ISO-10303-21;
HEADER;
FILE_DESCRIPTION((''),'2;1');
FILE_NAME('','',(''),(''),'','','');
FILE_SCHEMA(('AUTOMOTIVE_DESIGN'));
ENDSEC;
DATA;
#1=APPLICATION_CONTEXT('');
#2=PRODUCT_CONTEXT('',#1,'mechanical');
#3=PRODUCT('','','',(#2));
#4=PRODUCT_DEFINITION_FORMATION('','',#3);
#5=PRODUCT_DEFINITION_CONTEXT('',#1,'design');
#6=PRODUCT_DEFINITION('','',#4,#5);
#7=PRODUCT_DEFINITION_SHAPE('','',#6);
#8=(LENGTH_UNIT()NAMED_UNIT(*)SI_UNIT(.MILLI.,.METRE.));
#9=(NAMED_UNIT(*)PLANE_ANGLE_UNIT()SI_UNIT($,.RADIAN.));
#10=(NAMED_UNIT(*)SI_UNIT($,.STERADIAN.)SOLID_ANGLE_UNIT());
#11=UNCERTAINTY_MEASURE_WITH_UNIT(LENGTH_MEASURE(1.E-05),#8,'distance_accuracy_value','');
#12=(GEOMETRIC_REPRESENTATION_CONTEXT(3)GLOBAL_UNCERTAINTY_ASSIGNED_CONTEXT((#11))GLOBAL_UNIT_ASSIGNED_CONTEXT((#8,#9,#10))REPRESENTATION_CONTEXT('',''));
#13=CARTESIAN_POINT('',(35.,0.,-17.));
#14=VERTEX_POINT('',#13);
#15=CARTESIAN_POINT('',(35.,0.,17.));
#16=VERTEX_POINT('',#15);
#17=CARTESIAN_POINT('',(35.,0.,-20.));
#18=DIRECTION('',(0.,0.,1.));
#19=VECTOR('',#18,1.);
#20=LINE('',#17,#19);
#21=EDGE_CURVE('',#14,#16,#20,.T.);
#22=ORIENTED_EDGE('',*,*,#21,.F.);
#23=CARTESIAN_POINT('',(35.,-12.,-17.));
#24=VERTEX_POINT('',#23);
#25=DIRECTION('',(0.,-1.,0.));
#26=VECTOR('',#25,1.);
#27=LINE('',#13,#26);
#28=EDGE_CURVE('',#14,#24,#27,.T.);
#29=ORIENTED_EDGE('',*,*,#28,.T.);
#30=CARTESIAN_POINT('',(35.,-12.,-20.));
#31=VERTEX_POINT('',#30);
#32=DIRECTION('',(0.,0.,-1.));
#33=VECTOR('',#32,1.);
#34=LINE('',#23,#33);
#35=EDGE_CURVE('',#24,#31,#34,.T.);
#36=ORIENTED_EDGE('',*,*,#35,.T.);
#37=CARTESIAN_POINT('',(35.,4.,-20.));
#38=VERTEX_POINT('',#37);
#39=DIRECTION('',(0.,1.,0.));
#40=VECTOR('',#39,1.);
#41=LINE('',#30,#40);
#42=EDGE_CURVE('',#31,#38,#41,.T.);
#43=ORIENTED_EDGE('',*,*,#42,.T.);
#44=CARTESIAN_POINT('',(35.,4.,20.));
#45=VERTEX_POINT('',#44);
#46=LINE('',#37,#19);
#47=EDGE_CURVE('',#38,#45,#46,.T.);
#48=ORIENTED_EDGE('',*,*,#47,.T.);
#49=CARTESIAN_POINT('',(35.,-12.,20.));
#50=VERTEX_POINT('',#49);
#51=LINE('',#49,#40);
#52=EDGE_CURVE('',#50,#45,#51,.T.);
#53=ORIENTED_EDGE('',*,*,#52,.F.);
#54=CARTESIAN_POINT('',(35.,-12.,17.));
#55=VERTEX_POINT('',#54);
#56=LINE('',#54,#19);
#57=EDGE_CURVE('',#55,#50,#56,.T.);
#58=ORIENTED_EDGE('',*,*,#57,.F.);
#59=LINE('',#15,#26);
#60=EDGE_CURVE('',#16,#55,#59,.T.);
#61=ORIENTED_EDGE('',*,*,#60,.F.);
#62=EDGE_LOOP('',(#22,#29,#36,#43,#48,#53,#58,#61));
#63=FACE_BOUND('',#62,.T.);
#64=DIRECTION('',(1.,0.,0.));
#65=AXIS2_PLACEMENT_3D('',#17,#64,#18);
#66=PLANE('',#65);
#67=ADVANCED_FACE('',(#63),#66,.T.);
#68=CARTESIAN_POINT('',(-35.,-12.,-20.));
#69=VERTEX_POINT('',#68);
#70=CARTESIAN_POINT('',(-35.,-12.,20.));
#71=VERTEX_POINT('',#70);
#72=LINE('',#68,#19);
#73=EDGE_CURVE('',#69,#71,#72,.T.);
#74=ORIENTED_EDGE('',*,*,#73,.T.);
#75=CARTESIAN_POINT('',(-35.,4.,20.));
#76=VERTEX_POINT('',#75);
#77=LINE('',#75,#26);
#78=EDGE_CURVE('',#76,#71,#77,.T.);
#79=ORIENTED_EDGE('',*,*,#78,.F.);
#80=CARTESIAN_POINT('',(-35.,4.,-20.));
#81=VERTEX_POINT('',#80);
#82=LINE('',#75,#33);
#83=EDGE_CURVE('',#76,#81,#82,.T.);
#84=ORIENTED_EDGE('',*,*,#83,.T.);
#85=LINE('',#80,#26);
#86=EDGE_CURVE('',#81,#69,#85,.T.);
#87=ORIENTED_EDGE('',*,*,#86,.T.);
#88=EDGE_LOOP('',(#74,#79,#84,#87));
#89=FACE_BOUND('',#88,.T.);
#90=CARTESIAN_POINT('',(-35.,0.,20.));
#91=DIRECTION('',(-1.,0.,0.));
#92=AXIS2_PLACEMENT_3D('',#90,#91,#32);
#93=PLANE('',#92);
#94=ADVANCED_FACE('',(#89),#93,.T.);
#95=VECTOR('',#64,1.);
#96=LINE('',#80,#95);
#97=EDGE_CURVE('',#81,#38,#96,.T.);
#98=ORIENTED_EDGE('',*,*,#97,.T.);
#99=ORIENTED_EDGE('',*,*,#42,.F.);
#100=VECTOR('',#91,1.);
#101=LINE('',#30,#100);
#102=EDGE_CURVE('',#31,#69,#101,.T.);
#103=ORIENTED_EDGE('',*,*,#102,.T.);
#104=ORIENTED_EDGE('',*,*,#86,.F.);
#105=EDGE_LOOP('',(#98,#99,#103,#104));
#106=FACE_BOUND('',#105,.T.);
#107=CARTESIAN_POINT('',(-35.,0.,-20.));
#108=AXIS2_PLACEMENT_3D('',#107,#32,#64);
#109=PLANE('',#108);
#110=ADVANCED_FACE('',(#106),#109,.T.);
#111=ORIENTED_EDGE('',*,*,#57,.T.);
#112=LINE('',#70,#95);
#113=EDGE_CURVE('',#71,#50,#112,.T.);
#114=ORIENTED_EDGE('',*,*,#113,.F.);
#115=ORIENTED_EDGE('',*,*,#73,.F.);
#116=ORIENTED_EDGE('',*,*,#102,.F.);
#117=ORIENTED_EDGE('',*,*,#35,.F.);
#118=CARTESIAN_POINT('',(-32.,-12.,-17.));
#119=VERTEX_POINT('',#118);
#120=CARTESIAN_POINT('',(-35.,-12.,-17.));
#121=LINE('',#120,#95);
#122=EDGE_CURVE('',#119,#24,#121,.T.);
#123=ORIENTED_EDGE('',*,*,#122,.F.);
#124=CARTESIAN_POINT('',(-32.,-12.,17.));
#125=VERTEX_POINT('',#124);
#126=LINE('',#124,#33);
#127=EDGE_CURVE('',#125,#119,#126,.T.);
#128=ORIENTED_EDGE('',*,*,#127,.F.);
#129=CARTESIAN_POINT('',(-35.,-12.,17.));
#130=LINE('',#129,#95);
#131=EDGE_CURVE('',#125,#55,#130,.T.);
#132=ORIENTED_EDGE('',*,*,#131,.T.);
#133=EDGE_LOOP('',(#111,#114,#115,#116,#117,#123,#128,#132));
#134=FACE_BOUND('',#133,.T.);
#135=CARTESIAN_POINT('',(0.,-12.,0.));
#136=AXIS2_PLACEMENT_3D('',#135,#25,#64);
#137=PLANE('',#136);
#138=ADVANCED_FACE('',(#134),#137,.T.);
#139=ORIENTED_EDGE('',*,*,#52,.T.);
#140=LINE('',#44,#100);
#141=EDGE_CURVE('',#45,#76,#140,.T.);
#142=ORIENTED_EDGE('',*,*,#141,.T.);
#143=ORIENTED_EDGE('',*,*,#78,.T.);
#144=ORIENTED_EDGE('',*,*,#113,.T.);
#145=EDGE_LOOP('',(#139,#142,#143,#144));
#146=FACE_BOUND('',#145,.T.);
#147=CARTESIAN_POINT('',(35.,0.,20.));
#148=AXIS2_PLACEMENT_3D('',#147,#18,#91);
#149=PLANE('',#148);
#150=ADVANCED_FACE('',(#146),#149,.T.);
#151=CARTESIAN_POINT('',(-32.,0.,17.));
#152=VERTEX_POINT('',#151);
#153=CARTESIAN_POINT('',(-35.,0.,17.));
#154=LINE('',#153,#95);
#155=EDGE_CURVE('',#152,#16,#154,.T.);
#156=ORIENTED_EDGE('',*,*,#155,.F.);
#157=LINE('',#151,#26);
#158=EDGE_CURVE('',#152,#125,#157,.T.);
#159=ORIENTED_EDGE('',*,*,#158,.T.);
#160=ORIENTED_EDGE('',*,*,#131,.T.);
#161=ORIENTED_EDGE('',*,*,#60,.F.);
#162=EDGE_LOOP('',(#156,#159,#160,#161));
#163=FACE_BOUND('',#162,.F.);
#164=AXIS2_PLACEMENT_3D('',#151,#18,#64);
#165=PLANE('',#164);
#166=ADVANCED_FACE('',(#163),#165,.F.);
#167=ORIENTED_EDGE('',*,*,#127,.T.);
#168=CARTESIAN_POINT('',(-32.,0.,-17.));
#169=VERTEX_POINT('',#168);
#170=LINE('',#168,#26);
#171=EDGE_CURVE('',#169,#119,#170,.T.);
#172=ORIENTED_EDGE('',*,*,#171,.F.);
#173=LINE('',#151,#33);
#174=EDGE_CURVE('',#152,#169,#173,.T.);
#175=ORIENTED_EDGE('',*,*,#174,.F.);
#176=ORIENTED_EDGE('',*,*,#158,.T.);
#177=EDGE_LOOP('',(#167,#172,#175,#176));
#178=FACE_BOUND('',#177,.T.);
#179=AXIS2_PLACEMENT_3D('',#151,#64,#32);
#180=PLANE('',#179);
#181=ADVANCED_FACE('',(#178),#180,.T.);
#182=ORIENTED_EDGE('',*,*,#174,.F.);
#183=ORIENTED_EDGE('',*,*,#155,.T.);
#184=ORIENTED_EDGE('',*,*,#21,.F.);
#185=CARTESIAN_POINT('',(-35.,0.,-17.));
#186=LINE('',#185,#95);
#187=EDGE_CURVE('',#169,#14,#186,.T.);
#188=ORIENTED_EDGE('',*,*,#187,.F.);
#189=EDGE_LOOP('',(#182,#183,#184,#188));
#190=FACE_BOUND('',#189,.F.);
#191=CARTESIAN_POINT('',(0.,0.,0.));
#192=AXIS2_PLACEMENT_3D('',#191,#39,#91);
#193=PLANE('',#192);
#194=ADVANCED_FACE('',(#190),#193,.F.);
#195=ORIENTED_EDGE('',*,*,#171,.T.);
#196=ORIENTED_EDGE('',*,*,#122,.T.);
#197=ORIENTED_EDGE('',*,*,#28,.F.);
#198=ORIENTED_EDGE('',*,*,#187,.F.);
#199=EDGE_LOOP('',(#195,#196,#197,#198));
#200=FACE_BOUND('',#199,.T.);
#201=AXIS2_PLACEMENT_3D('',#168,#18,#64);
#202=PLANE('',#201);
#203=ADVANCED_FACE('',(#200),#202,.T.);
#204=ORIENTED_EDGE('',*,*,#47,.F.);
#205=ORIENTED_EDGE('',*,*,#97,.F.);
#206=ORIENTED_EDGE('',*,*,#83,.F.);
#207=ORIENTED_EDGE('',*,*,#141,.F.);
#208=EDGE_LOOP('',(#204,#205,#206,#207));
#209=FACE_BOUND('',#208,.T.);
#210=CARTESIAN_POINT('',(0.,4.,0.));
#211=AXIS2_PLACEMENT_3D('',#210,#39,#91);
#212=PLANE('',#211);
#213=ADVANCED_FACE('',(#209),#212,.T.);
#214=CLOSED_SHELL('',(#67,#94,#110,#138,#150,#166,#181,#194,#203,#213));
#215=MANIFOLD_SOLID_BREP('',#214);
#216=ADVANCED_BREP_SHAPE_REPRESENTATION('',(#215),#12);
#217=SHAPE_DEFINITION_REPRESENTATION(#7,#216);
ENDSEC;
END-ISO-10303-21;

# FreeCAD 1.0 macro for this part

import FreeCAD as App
import Part
import Sketcher
Q = App.Units.Quantity


def add_polygon(sketch, points):
    """Adds a closed chain of lines whose ends are joined by coincident constraints."""
    first, n = sketch.GeometryCount, len(points)
    for a, b in zip(points, points[1:] + points[:1]):
        sketch.addGeometry(Part.LineSegment(App.Vector(*a, 0), App.Vector(*b, 0)), False)
    for i in range(n):
        sketch.addConstraint(Sketcher.Constraint("Coincident", first + i, 2, first + (i + 1) % n, 1))

doc = App.newDocument("Part")
body = doc.addObject("PartDesign::Body", "Body")

# Sketch on XZ plane
sketch1 = doc.addObject("Sketcher::SketchObject", "Sketch")
body.addObject(sketch1)
sketch1.AttachmentSupport = (doc.XZ_Plane, [""])
sketch1.MapMode = "FlatFace"
add_polygon(sketch1, [(-35, 20), (35, 20), (35, -20), (-35, -20)])  # lines 0-3
sketch1.addConstraint([
    Sketcher.Constraint("Horizontal", 0),
    Sketcher.Constraint("Vertical", 1),
    Sketcher.Constraint("Horizontal", 2),
    Sketcher.Constraint("Vertical", 3),
    Sketcher.Constraint("Symmetric", 0, 2, 2, 2, -1, 1),
    Sketcher.Constraint("DistanceX", 0, 1, 0, 2, Q("70 mm")),
    Sketcher.Constraint("DistanceY", 1, 2, 1, 1, Q("40 mm")),
])
pad1 = doc.addObject("PartDesign::Pad", "Pad")
body.addObject(pad1)
pad1.Profile = sketch1
pad1.Length = 4
pad1.Reversed = True

# Sketch on XZ plane
sketch2 = doc.addObject("Sketcher::SketchObject", "Sketch001")
body.addObject(sketch2)
sketch2.AttachmentSupport = (doc.XZ_Plane, [""])
sketch2.MapMode = "FlatFace"
add_polygon(sketch2, [(35, 20), (-35, 20), (-35, -20), (35, -20), (35, -17), (-32, -17), (-32, 17), (35, 17)])  # lines 0-7
sketch2.addConstraint([
    Sketcher.Constraint("Horizontal", 0),
    Sketcher.Constraint("Vertical", 1),
    Sketcher.Constraint("Horizontal", 2),
    Sketcher.Constraint("Vertical", 3),
    Sketcher.Constraint("Horizontal", 4),
    Sketcher.Constraint("Vertical", 5),
    Sketcher.Constraint("Horizontal", 6),
    Sketcher.Constraint("Vertical", 7),
    Sketcher.Constraint("Symmetric", 0, 2, 2, 2, -1, 1),
    Sketcher.Constraint("Symmetric", 3, 2, 6, 2, -1),
    Sketcher.Constraint("DistanceY", 3, 1, 3, 2, Q("3 mm")),
    Sketcher.Constraint("DistanceX", 1, 2, 4, 2, Q("3 mm")),
    Sketcher.Constraint("DistanceX", 0, 2, 0, 1, Q("70 mm")),
    Sketcher.Constraint("DistanceY", 1, 2, 1, 1, Q("40 mm")),
])
pad2 = doc.addObject("PartDesign::Pad", "Pad001")
body.addObject(pad2)
pad2.Profile = sketch2
pad2.Length = 12

doc.recompute()
